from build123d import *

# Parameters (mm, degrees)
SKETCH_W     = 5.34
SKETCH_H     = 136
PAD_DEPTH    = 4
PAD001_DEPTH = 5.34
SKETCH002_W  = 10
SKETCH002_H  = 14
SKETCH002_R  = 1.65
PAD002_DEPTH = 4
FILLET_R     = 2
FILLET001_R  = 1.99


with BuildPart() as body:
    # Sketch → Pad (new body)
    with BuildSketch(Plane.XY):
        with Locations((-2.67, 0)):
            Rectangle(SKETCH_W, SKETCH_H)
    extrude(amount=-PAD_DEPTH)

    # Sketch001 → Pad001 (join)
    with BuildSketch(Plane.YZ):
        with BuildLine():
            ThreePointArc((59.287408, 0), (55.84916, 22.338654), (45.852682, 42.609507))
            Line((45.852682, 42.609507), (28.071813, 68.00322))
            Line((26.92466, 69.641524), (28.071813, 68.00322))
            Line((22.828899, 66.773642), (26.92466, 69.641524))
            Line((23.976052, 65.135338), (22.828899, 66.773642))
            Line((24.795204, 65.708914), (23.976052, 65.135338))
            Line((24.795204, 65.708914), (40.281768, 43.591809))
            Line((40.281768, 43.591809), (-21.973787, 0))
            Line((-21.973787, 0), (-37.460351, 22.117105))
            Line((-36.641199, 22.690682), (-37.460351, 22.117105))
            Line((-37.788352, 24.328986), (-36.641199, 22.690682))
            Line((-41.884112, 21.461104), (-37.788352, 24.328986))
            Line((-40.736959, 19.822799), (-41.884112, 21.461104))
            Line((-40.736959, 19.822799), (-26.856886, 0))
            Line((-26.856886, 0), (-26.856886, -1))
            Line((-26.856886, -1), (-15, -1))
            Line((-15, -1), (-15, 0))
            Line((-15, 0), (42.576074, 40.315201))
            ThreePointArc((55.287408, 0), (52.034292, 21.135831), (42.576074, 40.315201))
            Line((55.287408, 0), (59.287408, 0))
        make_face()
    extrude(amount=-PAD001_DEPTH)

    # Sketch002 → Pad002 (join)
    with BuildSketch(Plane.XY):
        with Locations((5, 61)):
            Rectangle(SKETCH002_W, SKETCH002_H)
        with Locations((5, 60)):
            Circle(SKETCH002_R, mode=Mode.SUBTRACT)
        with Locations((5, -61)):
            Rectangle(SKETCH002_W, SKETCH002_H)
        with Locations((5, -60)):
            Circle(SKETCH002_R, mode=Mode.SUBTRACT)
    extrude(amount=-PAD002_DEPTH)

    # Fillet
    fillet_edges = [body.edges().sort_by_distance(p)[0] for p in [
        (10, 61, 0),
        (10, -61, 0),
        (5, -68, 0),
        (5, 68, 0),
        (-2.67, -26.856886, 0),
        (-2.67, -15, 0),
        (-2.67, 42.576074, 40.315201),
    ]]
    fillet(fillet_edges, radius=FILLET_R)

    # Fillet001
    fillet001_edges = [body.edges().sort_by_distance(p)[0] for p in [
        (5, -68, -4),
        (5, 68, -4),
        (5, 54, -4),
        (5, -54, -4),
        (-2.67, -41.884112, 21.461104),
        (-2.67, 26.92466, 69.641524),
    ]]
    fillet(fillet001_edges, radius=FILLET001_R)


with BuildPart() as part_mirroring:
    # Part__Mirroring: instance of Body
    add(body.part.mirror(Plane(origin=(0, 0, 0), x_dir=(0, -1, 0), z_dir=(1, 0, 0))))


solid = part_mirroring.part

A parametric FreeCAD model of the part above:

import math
import FreeCAD as App
import Part
import Sketcher
Q = App.Units.Quantity


def edges_at(feature, points):
    """Names of the edges that pass closest to the given points."""
    edges = feature.Shape.Edges
    near = lambda p: min(range(len(edges)), key=lambda i: edges[i].distToShape(Part.Vertex(*p))[0])
    return sorted({f"Edge{near(p) + 1}" for p in points})


def add_polygon(sketch, points):
    """Adds a closed chain of lines whose ends are joined by coincident constraints."""
    first, n = sketch.GeometryCount, len(points)
    for a, b in zip(points, points[1:] + points[:1]):
        sketch.addGeometry(Part.LineSegment(App.Vector(*a, 0), App.Vector(*b, 0)), False)
    for i in range(n):
        sketch.addConstraint(Sketcher.Constraint("Coincident", first + i, 2, first + (i + 1) % n, 1))

doc = App.newDocument("Part")
body = doc.addObject("PartDesign::Body", "Body")

# Sketch on XY plane
sketch1 = body.newObject("Sketcher::SketchObject", "Sketch")
sketch1.AttachmentSupport = (doc.getObject("XY_Plane"), [""])
sketch1.MapMode = "FlatFace"
add_polygon(sketch1, [(-5.34, 68), (-5.34, -68), (0, -68), (0, 68)])  # lines 0-3
sketch1.addConstraint(Sketcher.Constraint("Vertical", 0))
sketch1.addConstraint(Sketcher.Constraint("Horizontal", 1))
sketch1.addConstraint(Sketcher.Constraint("Vertical", 2))
sketch1.addConstraint(Sketcher.Constraint("Horizontal", 3))
sketch1.addConstraint(Sketcher.Constraint("Symmetric", 1, 2, 2, 2, -1, 1))
sketch1.addConstraint(Sketcher.Constraint("DistanceY", 0, 2, 0, 1, 136.0))
sketch1.addConstraint(Sketcher.Constraint("DistanceX", 1, 1, 1, 2, 5.34))
pad1 = body.newObject("PartDesign::Pad", "Pad")
pad1.Profile = sketch1
pad1.Length = 4
pad1.Reversed = True

# Sketch on YZ plane
sketch2 = body.newObject("Sketcher::SketchObject", "Sketch001")
sketch2.AttachmentSupport = (doc.getObject("YZ_Plane"), [""])
sketch2.MapMode = "FlatFace"
sketch2.addGeometry(Part.ArcOfCircle(Part.Circle(App.Vector(-15.000008, -0.000002, 0), App.Vector(0, 0, 1), 74.287416), math.radians(0.000002), math.radians(34.999998)), False)
sketch2.addGeometry(Part.LineSegment(App.Vector(45.852682, 42.609507, 0), App.Vector(28.071813, 68.00322, 0)), False)
sketch2.addGeometry(Part.LineSegment(App.Vector(28.071813, 68.00322, 0), App.Vector(26.92466, 69.641524, 0)), False)
sketch2.addGeometry(Part.LineSegment(App.Vector(26.92466, 69.641524, 0), App.Vector(22.828899, 66.773642, 0)), False)
sketch2.addGeometry(Part.LineSegment(App.Vector(22.828899, 66.773642, 0), App.Vector(23.976052, 65.135338, 0)), False)
sketch2.addGeometry(Part.LineSegment(App.Vector(23.976052, 65.135338, 0), App.Vector(24.795204, 65.708914, 0)), False)
sketch2.addGeometry(Part.LineSegment(App.Vector(24.795204, 65.708914, 0), App.Vector(40.281768, 43.591809, 0)), False)
sketch2.addGeometry(Part.LineSegment(App.Vector(40.281768, 43.591809, 0), App.Vector(-21.973787, 0, 0)), False)
sketch2.addGeometry(Part.LineSegment(App.Vector(-21.973787, 0, 0), App.Vector(-37.460351, 22.117105, 0)), False)
sketch2.addGeometry(Part.LineSegment(App.Vector(-37.460351, 22.117105, 0), App.Vector(-36.641199, 22.690682, 0)), False)
sketch2.addGeometry(Part.LineSegment(App.Vector(-36.641199, 22.690682, 0), App.Vector(-37.788352, 24.328986, 0)), False)
sketch2.addGeometry(Part.LineSegment(App.Vector(-37.788352, 24.328986, 0), App.Vector(-41.884112, 21.461104, 0)), False)
sketch2.addGeometry(Part.LineSegment(App.Vector(-41.884112, 21.461104, 0), App.Vector(-40.736959, 19.822799, 0)), False)
sketch2.addGeometry(Part.LineSegment(App.Vector(-40.736959, 19.822799, 0), App.Vector(-26.856886, 0, 0)), False)
sketch2.addGeometry(Part.LineSegment(App.Vector(-26.856886, 0, 0), App.Vector(-26.856886, -1, 0)), False)
sketch2.addGeometry(Part.LineSegment(App.Vector(-26.856886, -1, 0), App.Vector(-15, -1, 0)), False)
sketch2.addGeometry(Part.LineSegment(App.Vector(-15, -1, 0), App.Vector(-15, 0, 0)), False)
sketch2.addGeometry(Part.LineSegment(App.Vector(-15, 0, 0), App.Vector(42.576074, 40.315201, 0)), False)
sketch2.addGeometry(Part.ArcOfCircle(Part.Circle(App.Vector(-15.00001, -0.000003, 0), App.Vector(0, 0, 1), 70.287418), math.radians(0.000003), math.radians(34.999997)), False)
sketch2.addGeometry(Part.LineSegment(App.Vector(55.287408, 0, 0), App.Vector(59.287408, 0, 0)), False)
sketch2.addConstraint(Sketcher.Constraint("Tangent", 0, 2, 1, 1))
sketch2.addConstraint(Sketcher.Constraint("Coincident", 1, 2, 2, 1))
sketch2.addConstraint(Sketcher.Constraint("Coincident", 2, 2, 3, 1))
sketch2.addConstraint(Sketcher.Constraint("Coincident", 3, 2, 4, 1))
sketch2.addConstraint(Sketcher.Constraint("Coincident", 4, 2, 5, 1))
sketch2.addConstraint(Sketcher.Constraint("Coincident", 5, 2, 6, 1))
sketch2.addConstraint(Sketcher.Constraint("Coincident", 6, 2, 7, 1))
sketch2.addConstraint(Sketcher.Constraint("Coincident", 7, 2, 8, 1))
sketch2.addConstraint(Sketcher.Constraint("Coincident", 8, 2, 9, 1))
sketch2.addConstraint(Sketcher.Constraint("Coincident", 9, 2, 10, 1))
sketch2.addConstraint(Sketcher.Constraint("Coincident", 10, 2, 11, 1))
sketch2.addConstraint(Sketcher.Constraint("Coincident", 11, 2, 12, 1))
sketch2.addConstraint(Sketcher.Constraint("Coincident", 12, 2, 13, 1))
sketch2.addConstraint(Sketcher.Constraint("Coincident", 13, 2, 14, 1))
sketch2.addConstraint(Sketcher.Constraint("Coincident", 14, 2, 15, 1))
sketch2.addConstraint(Sketcher.Constraint("Coincident", 15, 2, 16, 1))
sketch2.addConstraint(Sketcher.Constraint("Coincident", 16, 2, 17, 1))
sketch2.addConstraint(Sketcher.Constraint("Coincident", 17, 2, 18, 2))
sketch2.addConstraint(Sketcher.Constraint("Coincident", 18, 1, 19, 1))
sketch2.addConstraint(Sketcher.Constraint("Coincident", 19, 2, 0, 1))
sketch2.addConstraint(Sketcher.Constraint("Vertical", 14))
sketch2.addConstraint(Sketcher.Constraint("Horizontal", 15))
sketch2.addConstraint(Sketcher.Constraint("Vertical", 16))
sketch2.addConstraint(Sketcher.Constraint("Horizontal", 19))
sketch2.addConstraint(Sketcher.Constraint("Coincident", 18, 3, 0, 3))
sketch2.addConstraint(Sketcher.Constraint("Coincident", 16, 2, 0, 3))
sketch2.addConstraint(Sketcher.Constraint("PointOnObject", 7, 2, -1))
sketch2.addConstraint(Sketcher.Constraint("PointOnObject", 13, 2, -1))
sketch2.addConstraint(Sketcher.Constraint("PointOnObject", 16, 2, -1))
sketch2.addConstraint(Sketcher.Constraint("PointOnObject", 18, 1, -1))
sketch2.addConstraint(Sketcher.Constraint("Parallel", 1, 2))
sketch2.addConstraint(Sketcher.Constraint("Perpendicular", 2, 3))
sketch2.addConstraint(Sketcher.Constraint("Perpendicular", 3, 4))
sketch2.addConstraint(Sketcher.Constraint("Perpendicular", 4, 5))
sketch2.addConstraint(Sketcher.Constraint("Perpendicular", 5, 6))
sketch2.addConstraint(Sketcher.Constraint("Perpendicular", 6, 7))
sketch2.addConstraint(Sketcher.Constraint("Perpendicular", 7, 8))
sketch2.addConstraint(Sketcher.Constraint("Perpendicular", 8, 9))
sketch2.addConstraint(Sketcher.Constraint("Perpendicular", 9, 10))
sketch2.addConstraint(Sketcher.Constraint("Perpendicular", 10, 11))
sketch2.addConstraint(Sketcher.Constraint("Perpendicular", 11, 12))
sketch2.addConstraint(Sketcher.Constraint("Parallel", 12, 13))
sketch2.addConstraint(Sketcher.Constraint("Perpendicular", 13, 17))
sketch2.addConstraint(Sketcher.Constraint("Equal", 2, 4))
sketch2.addConstraint(Sketcher.Constraint("Equal", 6, 8))
sketch2.addConstraint(Sketcher.Constraint("Equal", 5, 9))
sketch2.addConstraint(Sketcher.Constraint("Equal", 4, 10))
sketch2.addConstraint(Sketcher.Constraint("Equal", 3, 11))
sketch2.addConstraint(Sketcher.Constraint("Equal", 10, 12))
sketch2.addConstraint(Sketcher.Constraint("DistanceX", 19, 1, 19, 2, 4.0))
sketch2.addConstraint(Sketcher.Constraint("DistanceY", 14, 2, 14, 1, 1.0))
sketch2.addConstraint(Sketcher.Constraint("Angle", 1, Q("125 deg")))
sketch2.addConstraint(Sketcher.Constraint("Distance", 1, 30.999999))
sketch2.addConstraint(Sketcher.Constraint("Distance", 2, 2.0))
sketch2.addConstraint(Sketcher.Constraint("Distance", 3, 5.000001))
sketch2.addConstraint(Sketcher.Constraint("Distance", 5, 1.0))
sketch2.addConstraint(Sketcher.Constraint("Distance", 6, 27.0))
sketch2.addConstraint(Sketcher.Constraint("Distance", 7, 76.0))
sketch2.addConstraint(Sketcher.Constraint("DistanceX", 15, 2, -1, 1, 15.0))
pad2 = body.newObject("PartDesign::Pad", "Pad001")
pad2.Profile = sketch2
pad2.Length = 5.34
pad2.Reversed = True

# Sketch on XY plane
sketch3 = body.newObject("Sketcher::SketchObject", "Sketch002")
sketch3.AttachmentSupport = (doc.getObject("XY_Plane"), [""])
sketch3.MapMode = "FlatFace"
add_polygon(sketch3, [(0, 68), (0, 54), (10, 54), (10, 68)])  # lines 0-3
sketch3.addGeometry(Part.Circle(App.Vector(5, 60, 0), App.Vector(0, 0, 1), 1.65), False)  # 4
add_polygon(sketch3, [(0, -54), (0, -68), (10, -68), (10, -54)])  # lines 5-8
sketch3.addGeometry(Part.Circle(App.Vector(5, -60, 0), App.Vector(0, 0, 1), 1.65), False)  # 9
sketch3.addConstraint(Sketcher.Constraint("Vertical", 0))
sketch3.addConstraint(Sketcher.Constraint("Horizontal", 1))
sketch3.addConstraint(Sketcher.Constraint("Vertical", 2))
sketch3.addConstraint(Sketcher.Constraint("Horizontal", 3))
sketch3.addConstraint(Sketcher.Constraint("Vertical", 5))
sketch3.addConstraint(Sketcher.Constraint("Horizontal", 6))
sketch3.addConstraint(Sketcher.Constraint("Vertical", 7))
sketch3.addConstraint(Sketcher.Constraint("Horizontal", 8))
sketch3.addConstraint(Sketcher.Constraint("Equal", 4, 9))
sketch3.addConstraint(Sketcher.Constraint("Symmetric", 3, 2, 5, 2, -1, 1))
sketch3.addConstraint(Sketcher.Constraint("Symmetric", 4, 3, 9, 3, -1))
sketch3.addConstraint(Sketcher.Constraint("Symmetric", 1, 2, 7, 2, -1))
sketch3.addConstraint(Sketcher.Constraint("PointOnObject", 0, 2, -2))
sketch3.addConstraint(Sketcher.Constraint("Diameter", 4, 3.3))
sketch3.addConstraint(Sketcher.Constraint("DistanceX", 1, 1, 1, 2, 10.0))
sketch3.addConstraint(Sketcher.Constraint("DistanceY", 0, 2, 0, 1, 14.0))
sketch3.addConstraint(Sketcher.Constraint("DistanceX", -1, 1, 4, 3, 5.0))
sketch3.addConstraint(Sketcher.Constraint("DistanceY", -1, 1, 4, 3, 60.0))
sketch3.addConstraint(Sketcher.Constraint("DistanceY", -1, 1, 0, 2, 54.0))
pad3 = body.newObject("PartDesign::Pad", "Pad002")
pad3.Profile = sketch3
pad3.Length = 4
pad3.Reversed = True
doc.recompute()

fillet = body.newObject("PartDesign::Fillet", "Fillet")
fillet.Base = (pad3, edges_at(pad3, [
    (10, 61, 0),
    (10, -61, 0),
    (2.33, -68, 0),
    (2.33, 68, 0),
    (-2.67, -26.857, 0),
    (-2.67, -15, 0),
    (-2.67, 42.576, 40.315),
]))
fillet.Radius = 2
doc.recompute()

fillet2 = body.newObject("PartDesign::Fillet", "Fillet001")
fillet2.Base = (fillet, edges_at(fillet, [
    (2.33, -68, -4),
    (2.33, 68, -4),
    (5, 54, -4),
    (5, -54, -4),
    (-2.67, -41.884, 21.461),
    (-2.67, 26.925, 69.642),
]))
fillet2.Radius = 1.99
body2 = doc.addObject("PartDesign::Body", "Body001")
doc.recompute()

mirroring = doc.addObject("Part::Mirroring", "Mirroring")
mirroring.Source = body
mirroring.Base = App.Vector(0, 0, 0)
mirroring.Normal = App.Vector(1, 0, 0)
body2.BaseFeature = mirroring
doc.recompute()
body.Visibility = False
mirroring.Visibility = False

doc.recompute()
